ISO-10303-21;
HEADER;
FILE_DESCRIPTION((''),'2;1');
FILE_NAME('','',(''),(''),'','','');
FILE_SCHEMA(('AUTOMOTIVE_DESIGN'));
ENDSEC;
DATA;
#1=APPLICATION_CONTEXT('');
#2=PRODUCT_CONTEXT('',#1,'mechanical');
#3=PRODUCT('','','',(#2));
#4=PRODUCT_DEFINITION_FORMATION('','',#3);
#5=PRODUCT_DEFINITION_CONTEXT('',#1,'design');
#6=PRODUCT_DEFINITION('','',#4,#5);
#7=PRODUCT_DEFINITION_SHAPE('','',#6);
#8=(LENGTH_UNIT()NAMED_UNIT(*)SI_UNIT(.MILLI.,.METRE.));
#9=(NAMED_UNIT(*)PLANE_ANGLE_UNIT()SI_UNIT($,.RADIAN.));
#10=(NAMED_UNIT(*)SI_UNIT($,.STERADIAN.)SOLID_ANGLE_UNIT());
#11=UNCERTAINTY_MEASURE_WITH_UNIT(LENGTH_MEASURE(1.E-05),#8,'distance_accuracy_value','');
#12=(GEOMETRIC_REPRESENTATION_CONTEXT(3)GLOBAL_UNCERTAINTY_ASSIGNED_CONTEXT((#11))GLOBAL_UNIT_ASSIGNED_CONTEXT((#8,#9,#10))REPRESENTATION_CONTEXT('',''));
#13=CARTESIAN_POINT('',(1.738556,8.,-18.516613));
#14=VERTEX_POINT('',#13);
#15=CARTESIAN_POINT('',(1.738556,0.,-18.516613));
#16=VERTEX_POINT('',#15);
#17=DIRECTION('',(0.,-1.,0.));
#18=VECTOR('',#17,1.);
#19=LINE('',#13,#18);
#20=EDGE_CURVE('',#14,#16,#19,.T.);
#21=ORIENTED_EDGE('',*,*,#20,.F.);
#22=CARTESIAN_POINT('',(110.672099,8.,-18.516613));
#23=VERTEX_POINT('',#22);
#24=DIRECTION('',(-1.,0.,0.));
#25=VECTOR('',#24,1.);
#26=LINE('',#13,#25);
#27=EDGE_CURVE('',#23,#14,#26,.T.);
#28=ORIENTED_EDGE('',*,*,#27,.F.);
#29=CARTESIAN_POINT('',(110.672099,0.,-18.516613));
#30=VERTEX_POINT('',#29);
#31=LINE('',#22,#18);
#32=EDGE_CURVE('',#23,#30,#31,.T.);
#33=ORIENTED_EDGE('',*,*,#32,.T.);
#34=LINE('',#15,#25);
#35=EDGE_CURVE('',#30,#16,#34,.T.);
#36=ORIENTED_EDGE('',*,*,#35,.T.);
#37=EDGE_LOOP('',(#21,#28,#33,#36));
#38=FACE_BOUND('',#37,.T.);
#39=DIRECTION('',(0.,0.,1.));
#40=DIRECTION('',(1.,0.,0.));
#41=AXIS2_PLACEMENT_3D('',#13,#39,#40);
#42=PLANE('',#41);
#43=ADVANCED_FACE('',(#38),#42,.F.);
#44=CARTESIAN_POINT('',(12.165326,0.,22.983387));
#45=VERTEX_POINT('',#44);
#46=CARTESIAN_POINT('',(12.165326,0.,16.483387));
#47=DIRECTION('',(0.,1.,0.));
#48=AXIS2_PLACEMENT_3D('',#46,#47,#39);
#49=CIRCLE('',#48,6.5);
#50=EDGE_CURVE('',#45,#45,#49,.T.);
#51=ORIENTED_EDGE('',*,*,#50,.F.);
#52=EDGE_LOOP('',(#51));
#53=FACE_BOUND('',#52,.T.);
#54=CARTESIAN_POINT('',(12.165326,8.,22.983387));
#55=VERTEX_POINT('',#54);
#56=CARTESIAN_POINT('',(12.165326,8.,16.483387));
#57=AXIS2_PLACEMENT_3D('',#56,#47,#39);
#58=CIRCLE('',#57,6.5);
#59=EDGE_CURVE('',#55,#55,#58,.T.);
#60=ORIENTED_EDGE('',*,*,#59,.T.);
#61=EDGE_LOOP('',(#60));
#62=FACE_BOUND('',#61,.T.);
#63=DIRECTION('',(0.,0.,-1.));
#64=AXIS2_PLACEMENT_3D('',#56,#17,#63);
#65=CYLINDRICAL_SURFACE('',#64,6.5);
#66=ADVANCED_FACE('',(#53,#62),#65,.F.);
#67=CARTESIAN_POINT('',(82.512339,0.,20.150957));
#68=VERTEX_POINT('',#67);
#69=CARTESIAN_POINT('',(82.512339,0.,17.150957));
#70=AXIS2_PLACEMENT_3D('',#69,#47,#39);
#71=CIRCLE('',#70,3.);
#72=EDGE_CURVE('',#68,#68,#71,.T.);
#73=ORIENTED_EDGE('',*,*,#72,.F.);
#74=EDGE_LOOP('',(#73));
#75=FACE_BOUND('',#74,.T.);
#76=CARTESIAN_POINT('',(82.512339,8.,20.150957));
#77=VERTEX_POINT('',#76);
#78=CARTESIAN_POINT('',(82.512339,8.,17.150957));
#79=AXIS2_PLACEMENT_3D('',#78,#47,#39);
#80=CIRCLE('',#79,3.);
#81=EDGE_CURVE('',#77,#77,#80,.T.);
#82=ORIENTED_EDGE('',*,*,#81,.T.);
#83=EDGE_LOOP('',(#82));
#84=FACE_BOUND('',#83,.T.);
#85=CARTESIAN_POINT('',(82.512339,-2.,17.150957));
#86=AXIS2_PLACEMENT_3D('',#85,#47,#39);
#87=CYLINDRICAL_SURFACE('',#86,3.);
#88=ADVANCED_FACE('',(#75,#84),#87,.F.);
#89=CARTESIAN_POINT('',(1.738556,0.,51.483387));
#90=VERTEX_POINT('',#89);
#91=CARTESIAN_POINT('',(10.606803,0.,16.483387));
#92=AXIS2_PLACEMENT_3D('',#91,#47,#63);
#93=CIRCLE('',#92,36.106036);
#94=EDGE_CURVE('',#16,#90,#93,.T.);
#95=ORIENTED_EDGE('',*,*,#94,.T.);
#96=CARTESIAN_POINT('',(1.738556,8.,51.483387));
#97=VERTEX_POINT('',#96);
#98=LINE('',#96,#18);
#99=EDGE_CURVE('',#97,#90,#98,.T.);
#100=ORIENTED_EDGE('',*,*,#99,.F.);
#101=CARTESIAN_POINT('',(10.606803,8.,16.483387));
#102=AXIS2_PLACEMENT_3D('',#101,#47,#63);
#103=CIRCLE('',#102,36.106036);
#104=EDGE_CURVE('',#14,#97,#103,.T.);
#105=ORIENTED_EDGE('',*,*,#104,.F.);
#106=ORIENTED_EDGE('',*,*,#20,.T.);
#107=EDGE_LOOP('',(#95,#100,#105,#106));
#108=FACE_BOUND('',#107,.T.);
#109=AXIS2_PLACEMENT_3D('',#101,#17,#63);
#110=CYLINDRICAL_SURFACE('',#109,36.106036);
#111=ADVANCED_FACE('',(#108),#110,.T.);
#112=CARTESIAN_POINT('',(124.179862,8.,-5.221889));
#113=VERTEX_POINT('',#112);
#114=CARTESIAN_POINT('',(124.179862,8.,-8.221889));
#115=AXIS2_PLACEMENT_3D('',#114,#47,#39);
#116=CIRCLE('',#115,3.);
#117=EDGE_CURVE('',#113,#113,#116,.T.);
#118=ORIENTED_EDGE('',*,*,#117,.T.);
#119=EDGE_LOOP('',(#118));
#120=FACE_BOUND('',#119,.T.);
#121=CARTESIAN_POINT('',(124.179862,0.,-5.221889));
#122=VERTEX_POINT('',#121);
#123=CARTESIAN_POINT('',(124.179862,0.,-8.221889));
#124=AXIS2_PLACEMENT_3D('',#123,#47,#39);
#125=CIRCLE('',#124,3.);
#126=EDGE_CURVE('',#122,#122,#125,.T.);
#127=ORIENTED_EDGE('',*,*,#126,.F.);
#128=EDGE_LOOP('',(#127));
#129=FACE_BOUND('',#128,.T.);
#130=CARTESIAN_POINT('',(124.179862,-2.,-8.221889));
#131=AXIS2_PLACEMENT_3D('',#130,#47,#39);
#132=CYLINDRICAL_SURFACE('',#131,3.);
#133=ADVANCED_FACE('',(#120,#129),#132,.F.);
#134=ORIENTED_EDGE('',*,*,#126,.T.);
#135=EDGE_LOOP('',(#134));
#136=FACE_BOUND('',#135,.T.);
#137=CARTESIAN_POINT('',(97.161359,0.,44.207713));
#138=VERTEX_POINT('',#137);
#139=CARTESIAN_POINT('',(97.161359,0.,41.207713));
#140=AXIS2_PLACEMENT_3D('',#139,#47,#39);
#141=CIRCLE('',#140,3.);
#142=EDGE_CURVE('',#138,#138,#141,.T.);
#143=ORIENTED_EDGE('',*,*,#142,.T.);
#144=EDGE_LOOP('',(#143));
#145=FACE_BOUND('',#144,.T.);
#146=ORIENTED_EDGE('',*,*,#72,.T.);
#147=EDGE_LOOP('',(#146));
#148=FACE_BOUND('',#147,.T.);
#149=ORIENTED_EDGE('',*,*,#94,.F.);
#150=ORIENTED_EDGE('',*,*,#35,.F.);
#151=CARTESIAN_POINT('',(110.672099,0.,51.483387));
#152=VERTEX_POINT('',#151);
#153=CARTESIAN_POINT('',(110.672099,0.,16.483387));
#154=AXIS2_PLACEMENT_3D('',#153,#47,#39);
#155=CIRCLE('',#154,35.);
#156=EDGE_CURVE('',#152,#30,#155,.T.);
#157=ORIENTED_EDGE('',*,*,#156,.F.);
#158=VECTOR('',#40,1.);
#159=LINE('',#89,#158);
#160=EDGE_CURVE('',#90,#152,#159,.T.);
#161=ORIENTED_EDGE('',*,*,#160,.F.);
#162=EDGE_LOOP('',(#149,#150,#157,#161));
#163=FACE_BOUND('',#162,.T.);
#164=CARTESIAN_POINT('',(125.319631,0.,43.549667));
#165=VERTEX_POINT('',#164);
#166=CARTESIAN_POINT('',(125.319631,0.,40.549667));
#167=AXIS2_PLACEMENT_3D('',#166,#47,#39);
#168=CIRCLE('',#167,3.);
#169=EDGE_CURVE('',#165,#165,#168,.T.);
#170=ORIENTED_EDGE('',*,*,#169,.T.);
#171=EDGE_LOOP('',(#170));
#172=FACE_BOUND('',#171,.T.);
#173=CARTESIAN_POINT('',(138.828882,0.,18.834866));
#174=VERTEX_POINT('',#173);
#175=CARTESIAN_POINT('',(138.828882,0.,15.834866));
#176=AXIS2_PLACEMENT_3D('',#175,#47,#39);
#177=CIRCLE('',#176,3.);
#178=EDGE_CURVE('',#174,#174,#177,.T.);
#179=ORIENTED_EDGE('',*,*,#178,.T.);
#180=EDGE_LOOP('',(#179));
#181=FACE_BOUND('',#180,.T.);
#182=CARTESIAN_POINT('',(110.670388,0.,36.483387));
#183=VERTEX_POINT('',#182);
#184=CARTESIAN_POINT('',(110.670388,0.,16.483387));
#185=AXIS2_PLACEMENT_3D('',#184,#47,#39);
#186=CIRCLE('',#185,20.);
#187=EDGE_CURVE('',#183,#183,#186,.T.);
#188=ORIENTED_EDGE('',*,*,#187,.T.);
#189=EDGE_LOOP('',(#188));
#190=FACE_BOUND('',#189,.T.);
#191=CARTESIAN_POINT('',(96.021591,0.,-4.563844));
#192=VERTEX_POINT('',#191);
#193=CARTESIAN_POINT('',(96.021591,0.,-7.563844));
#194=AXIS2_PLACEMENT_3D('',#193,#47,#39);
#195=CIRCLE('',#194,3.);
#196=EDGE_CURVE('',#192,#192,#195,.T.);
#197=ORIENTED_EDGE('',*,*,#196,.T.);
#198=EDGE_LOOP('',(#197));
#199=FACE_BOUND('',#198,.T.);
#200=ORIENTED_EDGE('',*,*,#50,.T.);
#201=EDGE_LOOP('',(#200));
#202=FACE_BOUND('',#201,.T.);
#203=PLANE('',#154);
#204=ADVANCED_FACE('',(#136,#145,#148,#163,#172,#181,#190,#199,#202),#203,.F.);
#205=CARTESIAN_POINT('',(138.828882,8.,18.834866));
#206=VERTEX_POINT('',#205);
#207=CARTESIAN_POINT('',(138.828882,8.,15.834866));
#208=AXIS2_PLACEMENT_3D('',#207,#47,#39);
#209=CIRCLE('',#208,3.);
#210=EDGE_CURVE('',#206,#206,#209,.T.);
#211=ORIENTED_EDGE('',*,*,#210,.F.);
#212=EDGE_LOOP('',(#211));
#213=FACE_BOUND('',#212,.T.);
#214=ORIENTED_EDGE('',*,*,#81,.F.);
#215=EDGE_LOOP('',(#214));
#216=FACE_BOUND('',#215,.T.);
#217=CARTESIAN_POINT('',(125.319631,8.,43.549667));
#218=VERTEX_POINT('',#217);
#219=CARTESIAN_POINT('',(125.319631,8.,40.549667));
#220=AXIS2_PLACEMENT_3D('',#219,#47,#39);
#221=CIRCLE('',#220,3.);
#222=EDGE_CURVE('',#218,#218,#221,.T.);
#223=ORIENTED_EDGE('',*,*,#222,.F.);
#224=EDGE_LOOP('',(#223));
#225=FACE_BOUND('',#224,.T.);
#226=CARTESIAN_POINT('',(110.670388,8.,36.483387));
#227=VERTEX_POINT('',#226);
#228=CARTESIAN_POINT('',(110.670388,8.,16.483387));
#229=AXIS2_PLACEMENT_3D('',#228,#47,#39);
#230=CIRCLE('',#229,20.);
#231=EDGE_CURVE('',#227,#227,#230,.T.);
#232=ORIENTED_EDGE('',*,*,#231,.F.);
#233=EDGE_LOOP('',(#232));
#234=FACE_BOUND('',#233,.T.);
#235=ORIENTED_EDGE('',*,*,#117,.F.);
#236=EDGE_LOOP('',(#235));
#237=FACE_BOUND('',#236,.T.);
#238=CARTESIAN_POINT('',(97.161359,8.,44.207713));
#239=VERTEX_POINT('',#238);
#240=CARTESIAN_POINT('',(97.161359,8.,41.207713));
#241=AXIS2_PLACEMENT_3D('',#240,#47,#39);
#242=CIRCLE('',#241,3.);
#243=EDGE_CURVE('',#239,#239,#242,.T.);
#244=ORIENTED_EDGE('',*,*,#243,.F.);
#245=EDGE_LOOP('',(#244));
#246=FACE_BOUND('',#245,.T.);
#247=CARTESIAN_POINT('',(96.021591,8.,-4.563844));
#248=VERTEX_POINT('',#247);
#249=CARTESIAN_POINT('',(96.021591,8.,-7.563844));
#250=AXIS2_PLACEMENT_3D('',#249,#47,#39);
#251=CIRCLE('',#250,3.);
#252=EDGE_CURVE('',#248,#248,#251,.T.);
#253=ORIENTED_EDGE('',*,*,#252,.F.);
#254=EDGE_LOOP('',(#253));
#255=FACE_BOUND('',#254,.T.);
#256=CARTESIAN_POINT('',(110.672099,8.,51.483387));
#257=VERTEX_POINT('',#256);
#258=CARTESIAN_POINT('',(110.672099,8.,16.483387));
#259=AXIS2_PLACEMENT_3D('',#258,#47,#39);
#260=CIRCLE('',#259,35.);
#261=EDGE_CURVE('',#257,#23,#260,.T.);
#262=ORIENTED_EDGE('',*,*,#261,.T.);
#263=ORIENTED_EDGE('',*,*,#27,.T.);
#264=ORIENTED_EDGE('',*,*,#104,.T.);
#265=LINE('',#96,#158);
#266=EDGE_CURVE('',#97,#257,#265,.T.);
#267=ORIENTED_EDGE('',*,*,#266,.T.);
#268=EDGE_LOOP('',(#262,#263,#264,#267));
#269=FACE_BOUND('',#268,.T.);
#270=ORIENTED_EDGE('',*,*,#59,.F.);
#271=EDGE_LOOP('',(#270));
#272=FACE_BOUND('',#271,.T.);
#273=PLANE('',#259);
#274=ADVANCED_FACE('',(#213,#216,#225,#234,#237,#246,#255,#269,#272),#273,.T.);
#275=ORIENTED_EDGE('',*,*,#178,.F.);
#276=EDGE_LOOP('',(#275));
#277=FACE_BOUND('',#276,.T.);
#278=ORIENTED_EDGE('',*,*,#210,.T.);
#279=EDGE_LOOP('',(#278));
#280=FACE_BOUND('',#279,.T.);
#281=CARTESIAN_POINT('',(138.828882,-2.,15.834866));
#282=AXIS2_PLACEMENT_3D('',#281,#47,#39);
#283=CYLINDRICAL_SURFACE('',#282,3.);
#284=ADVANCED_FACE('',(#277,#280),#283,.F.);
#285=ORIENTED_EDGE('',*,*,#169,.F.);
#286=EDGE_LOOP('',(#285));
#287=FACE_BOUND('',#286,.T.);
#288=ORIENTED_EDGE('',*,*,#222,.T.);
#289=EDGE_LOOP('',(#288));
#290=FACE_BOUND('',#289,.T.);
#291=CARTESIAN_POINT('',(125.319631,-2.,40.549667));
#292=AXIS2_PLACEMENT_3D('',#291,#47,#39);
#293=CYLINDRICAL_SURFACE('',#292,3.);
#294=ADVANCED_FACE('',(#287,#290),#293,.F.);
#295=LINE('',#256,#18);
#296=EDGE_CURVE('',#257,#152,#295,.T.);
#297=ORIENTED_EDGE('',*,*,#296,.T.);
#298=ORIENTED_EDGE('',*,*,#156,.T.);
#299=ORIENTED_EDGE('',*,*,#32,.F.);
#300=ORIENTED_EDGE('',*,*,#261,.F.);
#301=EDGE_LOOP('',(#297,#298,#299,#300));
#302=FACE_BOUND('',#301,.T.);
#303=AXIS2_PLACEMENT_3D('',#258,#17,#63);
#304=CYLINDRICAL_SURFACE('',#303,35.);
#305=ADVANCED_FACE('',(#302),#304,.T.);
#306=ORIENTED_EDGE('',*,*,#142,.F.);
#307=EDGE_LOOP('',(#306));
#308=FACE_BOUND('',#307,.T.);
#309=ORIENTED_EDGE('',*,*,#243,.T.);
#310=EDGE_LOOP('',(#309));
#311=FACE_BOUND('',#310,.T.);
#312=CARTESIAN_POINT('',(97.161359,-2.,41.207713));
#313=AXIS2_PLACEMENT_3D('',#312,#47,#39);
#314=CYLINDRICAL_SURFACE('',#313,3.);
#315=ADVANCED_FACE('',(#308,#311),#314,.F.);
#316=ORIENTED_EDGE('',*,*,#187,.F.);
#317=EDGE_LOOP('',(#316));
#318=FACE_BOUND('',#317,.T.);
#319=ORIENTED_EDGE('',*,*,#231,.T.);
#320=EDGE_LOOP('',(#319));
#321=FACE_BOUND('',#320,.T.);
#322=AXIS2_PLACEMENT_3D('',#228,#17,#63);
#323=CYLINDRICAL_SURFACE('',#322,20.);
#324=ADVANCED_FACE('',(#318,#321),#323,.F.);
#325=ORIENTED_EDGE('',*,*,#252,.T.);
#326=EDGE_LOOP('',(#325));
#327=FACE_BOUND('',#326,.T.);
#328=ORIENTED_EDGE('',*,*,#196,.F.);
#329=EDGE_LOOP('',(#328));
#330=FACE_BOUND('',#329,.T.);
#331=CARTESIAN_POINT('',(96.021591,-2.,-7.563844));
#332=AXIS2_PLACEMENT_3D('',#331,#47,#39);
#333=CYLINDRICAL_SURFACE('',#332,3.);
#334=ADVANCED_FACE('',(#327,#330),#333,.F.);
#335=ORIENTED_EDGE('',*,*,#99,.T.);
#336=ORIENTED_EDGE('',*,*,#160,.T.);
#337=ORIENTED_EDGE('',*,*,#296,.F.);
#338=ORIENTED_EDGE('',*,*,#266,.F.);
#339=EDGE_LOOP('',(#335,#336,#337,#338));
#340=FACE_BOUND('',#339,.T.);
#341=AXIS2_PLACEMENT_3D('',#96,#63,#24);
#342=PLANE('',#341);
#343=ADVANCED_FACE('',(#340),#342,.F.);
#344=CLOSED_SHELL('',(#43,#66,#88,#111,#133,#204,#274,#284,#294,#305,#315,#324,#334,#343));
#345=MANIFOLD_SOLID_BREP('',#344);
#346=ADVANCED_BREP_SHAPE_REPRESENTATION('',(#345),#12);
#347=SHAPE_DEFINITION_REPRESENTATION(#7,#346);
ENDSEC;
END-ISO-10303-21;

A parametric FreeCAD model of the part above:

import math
import FreeCAD as App
import Part
import Sketcher
from FreeCAD import Vector
Q = App.Units.Quantity

doc = App.newDocument("Part")
params = doc.addObject("Spreadsheet::Sheet", "Params")
for row, (alias, value) in enumerate([
    ("sketch1_diameter", "40 mm"),
    ("sketch1_diameter2", "13 mm"),
    ("sketch1_radius", "35 mm"),
    ("pad1_length", "8 mm"),
    ("sketch2_diameter", "6 mm"),
    ("pocket1_length", "10 mm"),
], start=1):
    params.set(f"A{row}", alias)
    params.set(f"B{row}", "=" + value)
    params.setAlias(f"B{row}", alias)

body = doc.addObject("PartDesign::Body", "Body")

sketch1 = body.newObject("Sketcher::SketchObject", "Sketch")
sketch1.AttachmentSupport = (doc.getObject("XZ_Plane"), [""])
sketch1.MapMode = "FlatFace"
sketch1.addGeometry([
    Part.LineSegment(Vector(111, -19, 0), Vector(2, -19, 0)),
    Part.ArcOfCircle(Part.Circle(Vector(11, 16, 0), Vector(0, 0, 1), 36), math.radians(104), math.radians(256)),
    Part.LineSegment(Vector(2, 51, 0), Vector(111, 51, 0)),
    Part.ArcOfCircle(Part.Circle(Vector(111, 16, 0), Vector(0, 0, 1), 35), math.radians(-90), math.radians(90)),
    Part.Circle(Vector(111, 16, 0), Vector(0, 0, 1), 20),
    Part.Circle(Vector(12, 16, 0), Vector(0, 0, 1), 6),
], False)
sketch1.addConstraint([
    Sketcher.Constraint("Coincident", 0, 2, 1, 2),
    Sketcher.Constraint("Coincident", 1, 1, 2, 1),
    Sketcher.Constraint("Tangent", 2, 2, 3, 2),
    Sketcher.Constraint("Tangent", 3, 1, 0, 1),
    Sketcher.Constraint("Horizontal", 0),
    Sketcher.Constraint("Horizontal", 2),
    Sketcher.Constraint("Horizontal", 1, 3, 3, 3),
    Sketcher.Constraint("Horizontal", 3, 3, 4, 3),
    Sketcher.Constraint("Horizontal", 4, 3, 5, 3),
    Sketcher.Constraint("Diameter", 4, Q("40 mm")),
    Sketcher.Constraint("Diameter", 5, Q("13 mm")),
    Sketcher.Constraint("Radius", 3, Q("35 mm")),
    Sketcher.Constraint("Radius", 1, Q("36.106036 mm")),
    Sketcher.Constraint("DistanceX", -1, 1, 3, 3, Q("110.672099 mm")),
    Sketcher.Constraint("DistanceX", 0, 2, 0, 1, Q("108.933543 mm")),
    Sketcher.Constraint("DistanceX", 4, 3, 3, 3, Q("0.001711 mm")),
    Sketcher.Constraint("DistanceX", 5, 3, 4, 3, Q("98.505062 mm")),
    Sketcher.Constraint("DistanceY", -1, 1, 1, 3, Q("16.483387 mm")),
])
sketch1.setExpression("Constraints[9]", "Params.sketch1_diameter")
sketch1.setExpression("Constraints[10]", "Params.sketch1_diameter2")
sketch1.setExpression("Constraints[11]", "Params.sketch1_radius")
pad1 = body.newObject("PartDesign::Pad", "Pad")
pad1.Profile = sketch1
pad1.setExpression("Length", "Params.pad1_length")
pad1.Reversed = True

sketch2 = body.newObject("Sketcher::SketchObject", "Sketch001")
sketch2.AttachmentSupport = (doc.getObject("XZ_Plane"), [""])
sketch2.MapMode = "FlatFace"
sketch2.AttachmentOffset = App.Placement(Vector(0, 0, -8), App.Rotation())
sketch2.addGeometry([
    Part.Circle(Vector(96, -7.6, 0), Vector(0, 0, 1), 3),
    Part.Circle(Vector(124.2, -8.2, 0), Vector(0, 0, 1), 3),
    Part.Circle(Vector(138.8, 15.8, 0), Vector(0, 0, 1), 3),
    Part.Circle(Vector(125.3, 40.5, 0), Vector(0, 0, 1), 3),
    Part.Circle(Vector(97.2, 41.2, 0), Vector(0, 0, 1), 3),
    Part.Circle(Vector(82.5, 17.2, 0), Vector(0, 0, 1), 3),
], False)
sketch2.addConstraint([
    Sketcher.Constraint("Equal", 0, 1),
    Sketcher.Constraint("Equal", 1, 2),
    Sketcher.Constraint("Equal", 2, 3),
    Sketcher.Constraint("Equal", 3, 4),
    Sketcher.Constraint("Equal", 4, 5),
    Sketcher.Constraint("Diameter", 0, Q("6 mm")),
    Sketcher.Constraint("DistanceY", 2, 3, 3, 3, Q("24.714801 mm")),
    Sketcher.Constraint("DistanceY", 0, 3, 5, 3, Q("24.714801 mm")),
    Sketcher.Constraint("DistanceX", -1, 1, 0, 3, Q("96.021591 mm")),
    Sketcher.Constraint("DistanceY", 1, 3, -1, 1, Q("8.221889 mm")),
    Sketcher.Constraint("DistanceX", -1, 1, 2, 3, Q("138.828882 mm")),
    Sketcher.Constraint("DistanceX", -1, 1, 3, 3, Q("125.319631 mm")),
    Sketcher.Constraint("DistanceX", -1, 1, 4, 3, Q("97.161359 mm")),
    Sketcher.Constraint("DistanceX", -1, 1, 5, 3, Q("82.512339 mm")),
    Sketcher.Constraint("DistanceX", 0, 3, 1, 3, Q("28.158271 mm")),
    Sketcher.Constraint("DistanceY", 0, 3, 2, 3, Q("23.39871 mm")),
    Sketcher.Constraint("DistanceY", 0, 3, -1, 1, Q("7.563844 mm")),
    Sketcher.Constraint("DistanceY", -1, 1, 4, 3, Q("41.207713 mm")),
])
sketch2.setExpression("Constraints[5]", "Params.sketch2_diameter")
pocket1 = body.newObject("PartDesign::Pocket", "Pocket")
pocket1.Profile = sketch2
pocket1.setExpression("Length", "Params.pocket1_length")
pocket1.Reversed = True

doc.recompute()
